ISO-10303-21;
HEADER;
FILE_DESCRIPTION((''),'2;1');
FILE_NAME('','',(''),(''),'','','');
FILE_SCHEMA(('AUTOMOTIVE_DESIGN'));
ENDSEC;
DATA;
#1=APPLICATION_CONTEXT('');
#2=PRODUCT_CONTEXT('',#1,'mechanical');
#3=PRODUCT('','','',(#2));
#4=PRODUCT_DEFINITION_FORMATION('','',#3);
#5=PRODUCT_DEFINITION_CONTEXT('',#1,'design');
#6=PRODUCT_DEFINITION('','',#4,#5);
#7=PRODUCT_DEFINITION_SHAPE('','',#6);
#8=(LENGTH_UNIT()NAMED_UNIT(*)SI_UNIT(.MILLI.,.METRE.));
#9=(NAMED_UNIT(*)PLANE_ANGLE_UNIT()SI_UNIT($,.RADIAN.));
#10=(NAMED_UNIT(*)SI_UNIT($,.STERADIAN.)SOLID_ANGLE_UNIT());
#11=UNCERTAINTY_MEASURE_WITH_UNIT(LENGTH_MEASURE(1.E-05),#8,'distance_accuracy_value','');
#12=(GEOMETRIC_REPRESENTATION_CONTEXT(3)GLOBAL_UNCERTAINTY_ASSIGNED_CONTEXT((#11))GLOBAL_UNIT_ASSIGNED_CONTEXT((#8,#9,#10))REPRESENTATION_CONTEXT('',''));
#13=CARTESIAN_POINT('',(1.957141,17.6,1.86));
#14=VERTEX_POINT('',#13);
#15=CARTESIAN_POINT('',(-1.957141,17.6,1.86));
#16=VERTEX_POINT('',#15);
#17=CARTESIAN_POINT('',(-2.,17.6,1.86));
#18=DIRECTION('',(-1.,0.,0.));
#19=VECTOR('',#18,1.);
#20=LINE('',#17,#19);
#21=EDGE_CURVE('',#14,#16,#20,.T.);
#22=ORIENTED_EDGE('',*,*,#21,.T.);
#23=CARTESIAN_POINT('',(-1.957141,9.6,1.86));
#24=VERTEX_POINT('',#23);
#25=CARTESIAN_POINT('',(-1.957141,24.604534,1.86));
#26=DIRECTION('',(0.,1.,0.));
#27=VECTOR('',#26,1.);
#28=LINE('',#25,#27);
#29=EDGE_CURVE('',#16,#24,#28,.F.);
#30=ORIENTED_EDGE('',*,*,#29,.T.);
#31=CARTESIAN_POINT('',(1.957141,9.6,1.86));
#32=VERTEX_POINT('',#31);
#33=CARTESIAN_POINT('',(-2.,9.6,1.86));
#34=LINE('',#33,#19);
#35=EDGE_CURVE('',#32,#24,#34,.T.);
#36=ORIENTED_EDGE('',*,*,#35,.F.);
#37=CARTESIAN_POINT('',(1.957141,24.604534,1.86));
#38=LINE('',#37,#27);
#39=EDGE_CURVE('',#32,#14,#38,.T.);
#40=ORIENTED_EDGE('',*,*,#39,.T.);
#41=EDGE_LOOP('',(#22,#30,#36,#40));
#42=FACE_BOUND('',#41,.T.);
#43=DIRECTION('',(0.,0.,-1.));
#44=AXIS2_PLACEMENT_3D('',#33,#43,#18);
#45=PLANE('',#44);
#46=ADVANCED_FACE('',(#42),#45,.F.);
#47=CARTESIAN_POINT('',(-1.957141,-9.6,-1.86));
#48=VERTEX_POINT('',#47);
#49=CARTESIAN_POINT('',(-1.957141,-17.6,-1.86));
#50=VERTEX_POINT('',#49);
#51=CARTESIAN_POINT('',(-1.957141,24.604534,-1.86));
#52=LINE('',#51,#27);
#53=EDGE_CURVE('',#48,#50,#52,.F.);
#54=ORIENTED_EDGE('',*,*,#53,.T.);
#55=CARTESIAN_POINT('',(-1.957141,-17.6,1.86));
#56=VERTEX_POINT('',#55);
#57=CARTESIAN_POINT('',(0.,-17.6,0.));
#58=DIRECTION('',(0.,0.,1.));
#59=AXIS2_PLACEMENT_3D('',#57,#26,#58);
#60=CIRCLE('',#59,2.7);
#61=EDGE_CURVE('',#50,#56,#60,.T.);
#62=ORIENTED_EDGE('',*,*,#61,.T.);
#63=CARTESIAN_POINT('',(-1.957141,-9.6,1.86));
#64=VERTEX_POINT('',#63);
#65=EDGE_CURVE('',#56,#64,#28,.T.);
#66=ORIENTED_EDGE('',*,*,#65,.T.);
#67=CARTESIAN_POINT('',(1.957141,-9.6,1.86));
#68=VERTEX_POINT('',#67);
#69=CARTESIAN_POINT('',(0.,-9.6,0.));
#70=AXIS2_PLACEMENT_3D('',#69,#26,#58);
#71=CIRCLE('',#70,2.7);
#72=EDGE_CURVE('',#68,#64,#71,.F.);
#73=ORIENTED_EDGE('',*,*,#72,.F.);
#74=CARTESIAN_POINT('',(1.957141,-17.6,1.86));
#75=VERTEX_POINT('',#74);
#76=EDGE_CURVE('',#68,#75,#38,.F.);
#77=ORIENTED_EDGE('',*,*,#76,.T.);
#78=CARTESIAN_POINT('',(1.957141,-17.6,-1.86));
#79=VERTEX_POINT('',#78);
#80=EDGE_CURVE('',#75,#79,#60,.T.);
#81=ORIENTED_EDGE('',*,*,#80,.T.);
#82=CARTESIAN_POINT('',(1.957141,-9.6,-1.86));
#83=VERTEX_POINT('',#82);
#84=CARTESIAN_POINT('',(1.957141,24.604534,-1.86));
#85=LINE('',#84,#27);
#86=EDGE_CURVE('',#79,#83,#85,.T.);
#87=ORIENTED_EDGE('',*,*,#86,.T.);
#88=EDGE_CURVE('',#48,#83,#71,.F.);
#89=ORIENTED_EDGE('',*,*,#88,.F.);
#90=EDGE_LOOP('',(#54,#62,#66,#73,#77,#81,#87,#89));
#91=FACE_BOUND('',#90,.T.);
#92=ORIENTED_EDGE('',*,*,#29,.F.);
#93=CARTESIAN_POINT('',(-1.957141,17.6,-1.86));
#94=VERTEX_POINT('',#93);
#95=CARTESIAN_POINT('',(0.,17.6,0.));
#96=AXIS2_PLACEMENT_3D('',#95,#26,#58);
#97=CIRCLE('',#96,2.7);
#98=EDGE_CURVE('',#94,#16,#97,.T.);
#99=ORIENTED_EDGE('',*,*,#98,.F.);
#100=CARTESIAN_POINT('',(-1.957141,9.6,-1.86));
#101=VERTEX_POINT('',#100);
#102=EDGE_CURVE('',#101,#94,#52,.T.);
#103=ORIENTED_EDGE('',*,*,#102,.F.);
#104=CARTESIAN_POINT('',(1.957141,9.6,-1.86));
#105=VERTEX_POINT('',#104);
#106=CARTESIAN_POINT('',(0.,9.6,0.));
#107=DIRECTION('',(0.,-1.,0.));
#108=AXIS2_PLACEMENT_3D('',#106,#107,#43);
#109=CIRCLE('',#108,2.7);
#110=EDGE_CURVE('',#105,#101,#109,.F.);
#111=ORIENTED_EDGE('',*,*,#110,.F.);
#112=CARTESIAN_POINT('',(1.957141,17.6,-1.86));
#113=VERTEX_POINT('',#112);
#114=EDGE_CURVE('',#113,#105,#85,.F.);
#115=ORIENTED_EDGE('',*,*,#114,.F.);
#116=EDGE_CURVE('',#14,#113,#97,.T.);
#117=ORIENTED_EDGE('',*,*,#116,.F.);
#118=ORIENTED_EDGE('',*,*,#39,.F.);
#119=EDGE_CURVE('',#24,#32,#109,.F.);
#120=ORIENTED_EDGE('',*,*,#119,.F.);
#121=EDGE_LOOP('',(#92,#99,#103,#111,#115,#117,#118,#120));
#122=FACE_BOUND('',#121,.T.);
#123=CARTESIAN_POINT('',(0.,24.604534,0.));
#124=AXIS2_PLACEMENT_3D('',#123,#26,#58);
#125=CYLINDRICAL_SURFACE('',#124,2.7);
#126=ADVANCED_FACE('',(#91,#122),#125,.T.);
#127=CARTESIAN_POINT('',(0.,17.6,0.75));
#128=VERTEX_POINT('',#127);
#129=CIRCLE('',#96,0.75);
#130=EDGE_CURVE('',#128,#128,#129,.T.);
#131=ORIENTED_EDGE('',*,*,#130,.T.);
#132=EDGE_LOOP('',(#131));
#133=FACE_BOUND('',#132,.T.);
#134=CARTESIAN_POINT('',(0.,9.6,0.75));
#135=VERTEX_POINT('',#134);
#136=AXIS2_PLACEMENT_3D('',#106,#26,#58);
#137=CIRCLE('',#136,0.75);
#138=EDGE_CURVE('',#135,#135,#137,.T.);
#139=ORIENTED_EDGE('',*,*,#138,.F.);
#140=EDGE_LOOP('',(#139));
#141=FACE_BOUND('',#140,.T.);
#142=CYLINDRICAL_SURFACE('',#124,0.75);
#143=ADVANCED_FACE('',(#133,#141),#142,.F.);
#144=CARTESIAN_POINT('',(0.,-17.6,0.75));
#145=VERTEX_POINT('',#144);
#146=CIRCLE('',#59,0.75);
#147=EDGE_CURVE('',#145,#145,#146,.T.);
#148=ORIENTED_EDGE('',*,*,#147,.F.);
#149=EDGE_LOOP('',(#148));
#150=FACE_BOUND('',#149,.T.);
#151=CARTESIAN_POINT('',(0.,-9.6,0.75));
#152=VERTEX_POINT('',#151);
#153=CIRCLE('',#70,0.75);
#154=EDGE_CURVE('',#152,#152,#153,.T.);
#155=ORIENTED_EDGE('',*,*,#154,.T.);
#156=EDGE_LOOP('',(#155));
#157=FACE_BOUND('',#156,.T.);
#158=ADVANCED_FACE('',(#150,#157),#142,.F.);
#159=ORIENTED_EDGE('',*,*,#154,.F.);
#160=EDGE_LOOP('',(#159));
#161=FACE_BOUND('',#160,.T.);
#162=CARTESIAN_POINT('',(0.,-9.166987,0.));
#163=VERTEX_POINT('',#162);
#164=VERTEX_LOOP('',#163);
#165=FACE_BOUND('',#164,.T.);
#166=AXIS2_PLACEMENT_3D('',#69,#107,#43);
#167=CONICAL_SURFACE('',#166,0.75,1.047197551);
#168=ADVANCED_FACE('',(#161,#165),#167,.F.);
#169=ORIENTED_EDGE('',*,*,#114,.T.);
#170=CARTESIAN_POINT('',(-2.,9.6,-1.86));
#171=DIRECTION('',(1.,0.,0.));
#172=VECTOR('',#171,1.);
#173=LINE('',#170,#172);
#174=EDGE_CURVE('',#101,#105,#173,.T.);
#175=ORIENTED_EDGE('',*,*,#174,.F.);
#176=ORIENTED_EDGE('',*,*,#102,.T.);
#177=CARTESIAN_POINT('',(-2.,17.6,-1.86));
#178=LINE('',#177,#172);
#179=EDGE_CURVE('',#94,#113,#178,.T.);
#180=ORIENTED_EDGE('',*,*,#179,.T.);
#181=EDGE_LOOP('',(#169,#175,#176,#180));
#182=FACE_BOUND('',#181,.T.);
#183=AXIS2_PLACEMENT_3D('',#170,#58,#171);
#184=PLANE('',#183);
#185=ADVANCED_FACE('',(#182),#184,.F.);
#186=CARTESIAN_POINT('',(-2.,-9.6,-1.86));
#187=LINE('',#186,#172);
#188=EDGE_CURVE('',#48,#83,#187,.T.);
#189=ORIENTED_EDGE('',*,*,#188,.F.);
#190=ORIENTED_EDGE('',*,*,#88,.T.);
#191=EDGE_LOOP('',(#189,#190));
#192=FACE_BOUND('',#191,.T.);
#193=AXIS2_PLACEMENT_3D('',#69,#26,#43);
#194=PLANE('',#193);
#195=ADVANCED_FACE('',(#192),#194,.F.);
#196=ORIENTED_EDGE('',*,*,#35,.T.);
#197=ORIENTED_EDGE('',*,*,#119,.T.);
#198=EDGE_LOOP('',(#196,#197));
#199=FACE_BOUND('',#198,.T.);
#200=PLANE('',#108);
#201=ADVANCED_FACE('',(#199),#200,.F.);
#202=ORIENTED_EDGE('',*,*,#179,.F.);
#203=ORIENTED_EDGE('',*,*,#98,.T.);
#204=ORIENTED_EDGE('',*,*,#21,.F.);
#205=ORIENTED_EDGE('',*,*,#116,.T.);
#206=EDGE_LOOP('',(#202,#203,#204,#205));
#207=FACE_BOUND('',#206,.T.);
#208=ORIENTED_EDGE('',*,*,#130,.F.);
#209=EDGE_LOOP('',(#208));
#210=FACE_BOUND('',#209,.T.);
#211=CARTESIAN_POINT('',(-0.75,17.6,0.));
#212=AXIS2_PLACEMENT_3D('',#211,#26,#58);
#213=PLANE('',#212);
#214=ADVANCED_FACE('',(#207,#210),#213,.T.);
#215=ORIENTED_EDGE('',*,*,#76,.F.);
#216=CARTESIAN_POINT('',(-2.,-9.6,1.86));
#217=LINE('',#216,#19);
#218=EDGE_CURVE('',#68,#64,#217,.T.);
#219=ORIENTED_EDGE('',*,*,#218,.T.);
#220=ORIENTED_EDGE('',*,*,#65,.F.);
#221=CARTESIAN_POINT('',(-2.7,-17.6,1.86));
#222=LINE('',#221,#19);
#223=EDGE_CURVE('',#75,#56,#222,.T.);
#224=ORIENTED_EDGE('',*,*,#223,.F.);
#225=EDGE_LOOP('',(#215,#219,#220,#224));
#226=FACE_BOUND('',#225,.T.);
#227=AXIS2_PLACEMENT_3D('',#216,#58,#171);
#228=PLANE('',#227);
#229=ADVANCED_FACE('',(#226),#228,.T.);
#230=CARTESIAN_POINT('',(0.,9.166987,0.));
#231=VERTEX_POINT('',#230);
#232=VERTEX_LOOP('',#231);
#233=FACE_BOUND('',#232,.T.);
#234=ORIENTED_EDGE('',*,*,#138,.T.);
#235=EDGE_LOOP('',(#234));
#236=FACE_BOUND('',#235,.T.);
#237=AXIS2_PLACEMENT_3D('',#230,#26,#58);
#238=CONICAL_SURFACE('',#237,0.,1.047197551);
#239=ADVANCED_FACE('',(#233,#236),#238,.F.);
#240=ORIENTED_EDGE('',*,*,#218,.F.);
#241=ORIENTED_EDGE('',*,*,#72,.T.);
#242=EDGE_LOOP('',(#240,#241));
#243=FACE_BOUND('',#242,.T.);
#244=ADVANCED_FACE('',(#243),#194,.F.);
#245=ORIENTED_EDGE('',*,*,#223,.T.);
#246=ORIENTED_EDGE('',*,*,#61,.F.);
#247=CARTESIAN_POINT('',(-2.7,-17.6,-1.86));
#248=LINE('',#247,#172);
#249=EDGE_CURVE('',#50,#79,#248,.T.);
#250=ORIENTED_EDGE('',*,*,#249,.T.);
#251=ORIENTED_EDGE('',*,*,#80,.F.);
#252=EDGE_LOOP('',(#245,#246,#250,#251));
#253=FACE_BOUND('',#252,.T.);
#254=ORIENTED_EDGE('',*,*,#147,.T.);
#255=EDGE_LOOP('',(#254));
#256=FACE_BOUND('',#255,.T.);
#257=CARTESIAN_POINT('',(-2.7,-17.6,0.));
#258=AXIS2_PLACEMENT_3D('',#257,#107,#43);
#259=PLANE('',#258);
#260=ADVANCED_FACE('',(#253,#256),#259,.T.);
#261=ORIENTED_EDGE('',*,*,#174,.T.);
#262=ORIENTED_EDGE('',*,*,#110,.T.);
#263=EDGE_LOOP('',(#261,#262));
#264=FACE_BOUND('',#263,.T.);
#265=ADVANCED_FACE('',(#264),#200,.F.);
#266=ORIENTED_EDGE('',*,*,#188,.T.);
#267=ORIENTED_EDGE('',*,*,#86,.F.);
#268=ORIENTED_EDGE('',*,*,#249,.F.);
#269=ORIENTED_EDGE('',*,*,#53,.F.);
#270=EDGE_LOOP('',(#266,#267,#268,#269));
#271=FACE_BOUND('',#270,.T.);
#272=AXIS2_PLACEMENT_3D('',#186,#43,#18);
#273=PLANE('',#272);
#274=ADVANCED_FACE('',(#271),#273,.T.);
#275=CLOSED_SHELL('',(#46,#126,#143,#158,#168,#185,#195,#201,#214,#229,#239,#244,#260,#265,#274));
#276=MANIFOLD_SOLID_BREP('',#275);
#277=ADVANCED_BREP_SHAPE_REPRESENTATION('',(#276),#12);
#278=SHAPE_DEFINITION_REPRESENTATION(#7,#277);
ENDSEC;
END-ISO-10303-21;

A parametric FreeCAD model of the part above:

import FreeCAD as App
import Part
import Sketcher
from FreeCAD import Vector
Q = App.Units.Quantity


def add_polygon(sketch, points):
    """Adds a closed chain of lines whose ends are joined by coincident constraints."""
    first, n = sketch.GeometryCount, len(points)
    for a, b in zip(points, points[1:] + points[:1]):
        sketch.addGeometry(Part.LineSegment(App.Vector(*a, 0), App.Vector(*b, 0)), False)
    for i in range(n):
        sketch.addConstraint(Sketcher.Constraint("Coincident", first + i, 2, first + (i + 1) % n, 1))

doc = App.newDocument("Part")
body = doc.addObject("PartDesign::Body", "Body")

# Sketch on XY plane
sketch1 = doc.addObject("Sketcher::SketchObject", "Sketch")
body.addObject(sketch1)
sketch1.AttachmentSupport = (doc.XY_Plane, [""])
sketch1.MapMode = "FlatFace"
add_polygon(sketch1, [(-2.7, 17.6), (-2.7, -17.6), (-0.8, -17.6), (-0.8, -9.6), (0, -9.2), (0, 9.2), (-0.8, 9.6), (-0.8, 17.6)])  # lines 0-7
sketch1.addConstraint([
    Sketcher.Constraint("Vertical", 0),
    Sketcher.Constraint("Horizontal", 1),
    Sketcher.Constraint("Vertical", 2),
    Sketcher.Constraint("Vertical", 4),
    Sketcher.Constraint("Vertical", 6),
    Sketcher.Constraint("Horizontal", 7),
    Sketcher.Constraint("Symmetric", 3, 2, 4, 2, -1, 1),
    Sketcher.Constraint("Symmetric", 2, 2, 5, 2, -1),
    Sketcher.Constraint("Equal", 2, 6),
    Sketcher.Constraint("DistanceY", 2, 1, 2, 2, 8.0),
    Sketcher.Constraint("Angle", 3, Q("30 deg")),
    Sketcher.Constraint("DistanceY", 0, 2, 0, 1, 35.2),
    Sketcher.Constraint("DistanceX", 1, 1, 1, 2, 1.95),
    Sketcher.Constraint("DistanceX", 0, 2, -1, 1, 2.7),
])
revolution = doc.addObject("PartDesign::Revolution", "Revolution")
body.addObject(revolution)
revolution.Profile = sketch1
revolution.ReferenceAxis = (sketch1, ["V_Axis"])
revolution.Angle = 360

# Sketch on XZ plane
sketch2 = doc.addObject("Sketcher::SketchObject", "Sketch001")
body.addObject(sketch2)
sketch2.AttachmentSupport = (doc.XZ_Plane, [""])
sketch2.MapMode = "FlatFace"
sketch2.AttachmentOffset = App.Placement(Vector(0, 0, -17.6), App.Rotation())
add_polygon(sketch2, [(-2, -2.9), (-2, -1.9), (2, -1.9), (2, -2.9)])  # lines 0-3
add_polygon(sketch2, [(-2, 1.9), (-2, 2.9), (2, 2.9), (2, 1.9)])  # lines 4-7
sketch2.addConstraint([
    Sketcher.Constraint("Vertical", 0),
    Sketcher.Constraint("Horizontal", 1),
    Sketcher.Constraint("Vertical", 2),
    Sketcher.Constraint("Horizontal", 3),
    Sketcher.Constraint("Vertical", 4),
    Sketcher.Constraint("Horizontal", 5),
    Sketcher.Constraint("Vertical", 6),
    Sketcher.Constraint("Horizontal", 7),
    Sketcher.Constraint("Symmetric", 2, 2, 4, 2, -1, 1),
    Sketcher.Constraint("Symmetric", 0, 2, 6, 2, -1, 1),
    Sketcher.Constraint("Vertical", 3, 2, 4, 2),
    Sketcher.Constraint("DistanceX", 1, 1, 1, 2, 4.0),
    Sketcher.Constraint("DistanceY", 0, 1, 0, 2, 1.0),
    Sketcher.Constraint("DistanceY", 0, 2, -1, 1, 1.86),
])
pocket1 = doc.addObject("PartDesign::Pocket", "Pocket")
body.addObject(pocket1)
pocket1.Profile = sketch2
pocket1.Length = 8
pocket1.Reversed = True
doc.recompute()

mirrored = doc.addObject("PartDesign::Mirrored", "Mirrored")
body.addObject(mirrored)
mirrored.Originals = [pocket1]
mirrored.MirrorPlane = (doc.XZ_Plane, [""])
body.Tip = mirrored

doc.recompute()
